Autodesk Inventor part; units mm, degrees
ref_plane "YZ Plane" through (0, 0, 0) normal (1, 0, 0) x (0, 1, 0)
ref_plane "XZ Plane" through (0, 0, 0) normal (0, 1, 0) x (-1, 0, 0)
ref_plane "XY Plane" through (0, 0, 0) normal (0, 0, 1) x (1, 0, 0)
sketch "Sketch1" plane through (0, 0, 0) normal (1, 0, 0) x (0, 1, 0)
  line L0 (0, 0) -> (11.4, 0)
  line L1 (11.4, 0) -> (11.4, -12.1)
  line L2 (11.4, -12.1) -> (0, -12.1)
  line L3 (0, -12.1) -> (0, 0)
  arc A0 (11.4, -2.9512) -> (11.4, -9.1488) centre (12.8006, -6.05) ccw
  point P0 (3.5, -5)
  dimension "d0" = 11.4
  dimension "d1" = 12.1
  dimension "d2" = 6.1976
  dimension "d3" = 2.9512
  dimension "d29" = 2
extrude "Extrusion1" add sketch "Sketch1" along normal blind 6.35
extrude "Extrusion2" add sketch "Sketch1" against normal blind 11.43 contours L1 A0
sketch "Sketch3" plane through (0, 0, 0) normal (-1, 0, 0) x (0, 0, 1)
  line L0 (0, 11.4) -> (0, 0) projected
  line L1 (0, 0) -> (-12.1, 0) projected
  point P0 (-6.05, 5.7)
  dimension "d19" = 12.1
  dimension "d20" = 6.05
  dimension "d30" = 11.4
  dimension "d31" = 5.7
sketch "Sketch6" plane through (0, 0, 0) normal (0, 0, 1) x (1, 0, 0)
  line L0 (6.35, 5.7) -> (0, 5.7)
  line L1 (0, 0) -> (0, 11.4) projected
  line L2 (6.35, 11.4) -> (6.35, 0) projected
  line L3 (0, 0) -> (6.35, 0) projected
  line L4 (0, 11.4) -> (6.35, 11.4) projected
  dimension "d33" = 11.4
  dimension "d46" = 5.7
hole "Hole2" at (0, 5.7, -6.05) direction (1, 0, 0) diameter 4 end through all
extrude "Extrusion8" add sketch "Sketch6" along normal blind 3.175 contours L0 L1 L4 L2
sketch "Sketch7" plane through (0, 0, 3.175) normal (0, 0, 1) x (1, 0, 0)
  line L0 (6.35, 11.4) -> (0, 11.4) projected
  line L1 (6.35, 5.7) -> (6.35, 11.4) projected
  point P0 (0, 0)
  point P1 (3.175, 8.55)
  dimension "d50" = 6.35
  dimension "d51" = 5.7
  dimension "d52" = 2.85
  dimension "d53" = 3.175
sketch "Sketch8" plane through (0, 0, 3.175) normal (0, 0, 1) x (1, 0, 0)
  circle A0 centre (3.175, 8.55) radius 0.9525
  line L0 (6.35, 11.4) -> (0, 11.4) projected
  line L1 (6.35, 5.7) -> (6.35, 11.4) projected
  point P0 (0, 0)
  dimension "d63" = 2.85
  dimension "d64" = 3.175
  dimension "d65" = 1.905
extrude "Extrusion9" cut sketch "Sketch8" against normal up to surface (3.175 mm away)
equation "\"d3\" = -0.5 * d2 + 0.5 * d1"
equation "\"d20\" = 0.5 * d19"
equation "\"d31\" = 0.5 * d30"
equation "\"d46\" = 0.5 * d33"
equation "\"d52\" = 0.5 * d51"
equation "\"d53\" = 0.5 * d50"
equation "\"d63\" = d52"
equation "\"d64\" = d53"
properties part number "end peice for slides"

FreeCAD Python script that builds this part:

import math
import FreeCAD as App
import Part
import Sketcher

V = App.Vector
Q = App.Units.Quantity

doc = App.newDocument("Part")
body = doc.addObject("PartDesign::Body", "Body")

# Sketch on YZ plane
sketch1 = body.newObject("Sketcher::SketchObject", "Sketch")
sketch1.AttachmentSupport = (doc.getObject("YZ_Plane"), [""])
sketch1.MapMode = "FlatFace"
sketch1.addGeometry(Part.LineSegment(V(11, 0, 0), V(0, 0, 0)), False)
sketch1.addGeometry(Part.LineSegment(V(0, 0, 0), V(0, -12, 0)), False)
sketch1.addGeometry(Part.LineSegment(V(0, -12, 0), V(11, -12, 0)), False)
sketch1.addGeometry(Part.LineSegment(V(11, -12, 0), V(11, 0, 0)), False)
sketch1.addConstraint(Sketcher.Constraint("Coincident", 0, 2, 1, 1))
sketch1.addConstraint(Sketcher.Constraint("Coincident", 1, 2, 2, 1))
sketch1.addConstraint(Sketcher.Constraint("Coincident", 2, 2, 3, 1))
sketch1.addConstraint(Sketcher.Constraint("Coincident", 3, 2, 0, 1))
sketch1.addConstraint(Sketcher.Constraint("Horizontal", 0))
sketch1.addConstraint(Sketcher.Constraint("Vertical", 1))
sketch1.addConstraint(Sketcher.Constraint("Horizontal", 2))
sketch1.addConstraint(Sketcher.Constraint("Vertical", 3))
sketch1.addConstraint(Sketcher.Constraint("Coincident", 0, 2, -1, 1))
sketch1.addConstraint(Sketcher.Constraint("DistanceX", 0, 2, 0, 1, 11.4))
sketch1.addConstraint(Sketcher.Constraint("DistanceY", 1, 2, 1, 1, 12.1))
pad1 = body.newObject("PartDesign::Pad", "Pad")
pad1.Profile = sketch1
pad1.Length = Q("0.25 in")

# Sketch on YZ plane
sketch2 = body.newObject("Sketcher::SketchObject", "Sketch001")
sketch2.AttachmentSupport = (doc.getObject("YZ_Plane"), [""])
sketch2.MapMode = "FlatFace"
sketch2.addGeometry(Part.LineSegment(V(11.4, -9.1, 0), V(11.4, -3, 0)), False)
sketch2.addGeometry(Part.ArcOfCircle(Part.Circle(V(12.8, -6, 0), V(0, 0, 1), 3.4), math.radians(114), math.radians(246)), False)
sketch2.addConstraint(Sketcher.Constraint("Coincident", 0, 1, 1, 2))
sketch2.addConstraint(Sketcher.Constraint("Coincident", 1, 1, 0, 2))
sketch2.addConstraint(Sketcher.Constraint("Vertical", 0))
sketch2.addConstraint(Sketcher.Constraint("DistanceY", 0, 1, 0, 2, Q("0.244 in")))
sketch2.addConstraint(Sketcher.Constraint("DistanceY", 1, 1, -1, 1, Q("0.1162 in")))
sketch2.addConstraint(Sketcher.Constraint("DistanceX", -1, 1, 0, 1, 11.4))
sketch2.addConstraint(Sketcher.Constraint("Radius", 1, 3.4006))
pad2 = body.newObject("PartDesign::Pad", "Pad001")
pad2.Profile = sketch2
pad2.Length = Q("0.45 in")
pad2.Reversed = True

# Sketch on YZ plane
sketch3 = body.newObject("Sketcher::SketchObject", "Sketch002")
sketch3.AttachmentSupport = (doc.getObject("YZ_Plane"), [""])
sketch3.MapMode = "FlatFace"
sketch3.addGeometry(Part.Circle(V(5.7, -6, 0), V(0, 0, 1), 2), False)
sketch3.addConstraint(Sketcher.Constraint("Diameter", 0, 4.0))
sketch3.addConstraint(Sketcher.Constraint("DistanceX", -1, 1, 0, 3, Q("0.2244 in")))
sketch3.addConstraint(Sketcher.Constraint("DistanceY", 0, 3, -1, 1, Q("0.2382 in")))
doc.recompute()
hole = body.newObject("PartDesign::Hole", "Hole")
hole.Profile = sketch3
hole.ThreadType = "None"
hole.Diameter = 4
hole.DepthType = "ThroughAll"
hole.Reversed = True

# Sketch on XY plane
sketch4 = body.newObject("Sketcher::SketchObject", "Sketch003")
sketch4.AttachmentSupport = (doc.getObject("XY_Plane"), [""])
sketch4.MapMode = "FlatFace"
sketch4.addGeometry(Part.LineSegment(V(0, 6, 0), V(6, 6, 0)), False)
sketch4.addGeometry(Part.LineSegment(V(6, 6, 0), V(6, 11, 0)), False)
sketch4.addGeometry(Part.LineSegment(V(6, 11, 0), V(0, 11, 0)), False)
sketch4.addGeometry(Part.LineSegment(V(0, 11, 0), V(0, 6, 0)), False)
sketch4.addConstraint(Sketcher.Constraint("Coincident", 0, 2, 1, 1))
sketch4.addConstraint(Sketcher.Constraint("Coincident", 1, 2, 2, 1))
sketch4.addConstraint(Sketcher.Constraint("Coincident", 2, 2, 3, 1))
sketch4.addConstraint(Sketcher.Constraint("Coincident", 3, 2, 0, 1))
sketch4.addConstraint(Sketcher.Constraint("Horizontal", 0))
sketch4.addConstraint(Sketcher.Constraint("Vertical", 1))
sketch4.addConstraint(Sketcher.Constraint("Horizontal", 2))
sketch4.addConstraint(Sketcher.Constraint("Vertical", 3))
sketch4.addConstraint(Sketcher.Constraint("PointOnObject", 2, 2, -2))
sketch4.addConstraint(Sketcher.Constraint("DistanceY", 1, 1, 1, 2, Q("0.2244 in")))
sketch4.addConstraint(Sketcher.Constraint("DistanceX", 0, 1, 0, 2, Q("0.25 in")))
sketch4.addConstraint(Sketcher.Constraint("DistanceY", -1, 1, 0, 2, Q("0.2244 in")))
pad3 = body.newObject("PartDesign::Pad", "Pad002")
pad3.Profile = sketch4
pad3.Length = Q("0.125 in")

# Sketch on XY plane
sketch5 = body.newObject("Sketcher::SketchObject", "Sketch004")
sketch5.AttachmentSupport = (doc.getObject("XY_Plane"), [""])
sketch5.MapMode = "FlatFace"
sketch5.AttachmentOffset = App.Placement(V(0, 0, 0.125 * 25.4), App.Rotation())
sketch5.addGeometry(Part.Circle(V(3.2, 8.6, 0), V(0, 0, 1), 1), False)
sketch5.addConstraint(Sketcher.Constraint("Diameter", 0, Q("0.075 in")))
sketch5.addConstraint(Sketcher.Constraint("DistanceX", -1, 1, 0, 3, Q("0.125 in")))
sketch5.addConstraint(Sketcher.Constraint("DistanceY", -1, 1, 0, 3, 8.55))
pocket1 = body.newObject("PartDesign::Pocket", "Pocket")
pocket1.Profile = sketch5
pocket1.Length = Q("0.125 in")

doc.recompute()
